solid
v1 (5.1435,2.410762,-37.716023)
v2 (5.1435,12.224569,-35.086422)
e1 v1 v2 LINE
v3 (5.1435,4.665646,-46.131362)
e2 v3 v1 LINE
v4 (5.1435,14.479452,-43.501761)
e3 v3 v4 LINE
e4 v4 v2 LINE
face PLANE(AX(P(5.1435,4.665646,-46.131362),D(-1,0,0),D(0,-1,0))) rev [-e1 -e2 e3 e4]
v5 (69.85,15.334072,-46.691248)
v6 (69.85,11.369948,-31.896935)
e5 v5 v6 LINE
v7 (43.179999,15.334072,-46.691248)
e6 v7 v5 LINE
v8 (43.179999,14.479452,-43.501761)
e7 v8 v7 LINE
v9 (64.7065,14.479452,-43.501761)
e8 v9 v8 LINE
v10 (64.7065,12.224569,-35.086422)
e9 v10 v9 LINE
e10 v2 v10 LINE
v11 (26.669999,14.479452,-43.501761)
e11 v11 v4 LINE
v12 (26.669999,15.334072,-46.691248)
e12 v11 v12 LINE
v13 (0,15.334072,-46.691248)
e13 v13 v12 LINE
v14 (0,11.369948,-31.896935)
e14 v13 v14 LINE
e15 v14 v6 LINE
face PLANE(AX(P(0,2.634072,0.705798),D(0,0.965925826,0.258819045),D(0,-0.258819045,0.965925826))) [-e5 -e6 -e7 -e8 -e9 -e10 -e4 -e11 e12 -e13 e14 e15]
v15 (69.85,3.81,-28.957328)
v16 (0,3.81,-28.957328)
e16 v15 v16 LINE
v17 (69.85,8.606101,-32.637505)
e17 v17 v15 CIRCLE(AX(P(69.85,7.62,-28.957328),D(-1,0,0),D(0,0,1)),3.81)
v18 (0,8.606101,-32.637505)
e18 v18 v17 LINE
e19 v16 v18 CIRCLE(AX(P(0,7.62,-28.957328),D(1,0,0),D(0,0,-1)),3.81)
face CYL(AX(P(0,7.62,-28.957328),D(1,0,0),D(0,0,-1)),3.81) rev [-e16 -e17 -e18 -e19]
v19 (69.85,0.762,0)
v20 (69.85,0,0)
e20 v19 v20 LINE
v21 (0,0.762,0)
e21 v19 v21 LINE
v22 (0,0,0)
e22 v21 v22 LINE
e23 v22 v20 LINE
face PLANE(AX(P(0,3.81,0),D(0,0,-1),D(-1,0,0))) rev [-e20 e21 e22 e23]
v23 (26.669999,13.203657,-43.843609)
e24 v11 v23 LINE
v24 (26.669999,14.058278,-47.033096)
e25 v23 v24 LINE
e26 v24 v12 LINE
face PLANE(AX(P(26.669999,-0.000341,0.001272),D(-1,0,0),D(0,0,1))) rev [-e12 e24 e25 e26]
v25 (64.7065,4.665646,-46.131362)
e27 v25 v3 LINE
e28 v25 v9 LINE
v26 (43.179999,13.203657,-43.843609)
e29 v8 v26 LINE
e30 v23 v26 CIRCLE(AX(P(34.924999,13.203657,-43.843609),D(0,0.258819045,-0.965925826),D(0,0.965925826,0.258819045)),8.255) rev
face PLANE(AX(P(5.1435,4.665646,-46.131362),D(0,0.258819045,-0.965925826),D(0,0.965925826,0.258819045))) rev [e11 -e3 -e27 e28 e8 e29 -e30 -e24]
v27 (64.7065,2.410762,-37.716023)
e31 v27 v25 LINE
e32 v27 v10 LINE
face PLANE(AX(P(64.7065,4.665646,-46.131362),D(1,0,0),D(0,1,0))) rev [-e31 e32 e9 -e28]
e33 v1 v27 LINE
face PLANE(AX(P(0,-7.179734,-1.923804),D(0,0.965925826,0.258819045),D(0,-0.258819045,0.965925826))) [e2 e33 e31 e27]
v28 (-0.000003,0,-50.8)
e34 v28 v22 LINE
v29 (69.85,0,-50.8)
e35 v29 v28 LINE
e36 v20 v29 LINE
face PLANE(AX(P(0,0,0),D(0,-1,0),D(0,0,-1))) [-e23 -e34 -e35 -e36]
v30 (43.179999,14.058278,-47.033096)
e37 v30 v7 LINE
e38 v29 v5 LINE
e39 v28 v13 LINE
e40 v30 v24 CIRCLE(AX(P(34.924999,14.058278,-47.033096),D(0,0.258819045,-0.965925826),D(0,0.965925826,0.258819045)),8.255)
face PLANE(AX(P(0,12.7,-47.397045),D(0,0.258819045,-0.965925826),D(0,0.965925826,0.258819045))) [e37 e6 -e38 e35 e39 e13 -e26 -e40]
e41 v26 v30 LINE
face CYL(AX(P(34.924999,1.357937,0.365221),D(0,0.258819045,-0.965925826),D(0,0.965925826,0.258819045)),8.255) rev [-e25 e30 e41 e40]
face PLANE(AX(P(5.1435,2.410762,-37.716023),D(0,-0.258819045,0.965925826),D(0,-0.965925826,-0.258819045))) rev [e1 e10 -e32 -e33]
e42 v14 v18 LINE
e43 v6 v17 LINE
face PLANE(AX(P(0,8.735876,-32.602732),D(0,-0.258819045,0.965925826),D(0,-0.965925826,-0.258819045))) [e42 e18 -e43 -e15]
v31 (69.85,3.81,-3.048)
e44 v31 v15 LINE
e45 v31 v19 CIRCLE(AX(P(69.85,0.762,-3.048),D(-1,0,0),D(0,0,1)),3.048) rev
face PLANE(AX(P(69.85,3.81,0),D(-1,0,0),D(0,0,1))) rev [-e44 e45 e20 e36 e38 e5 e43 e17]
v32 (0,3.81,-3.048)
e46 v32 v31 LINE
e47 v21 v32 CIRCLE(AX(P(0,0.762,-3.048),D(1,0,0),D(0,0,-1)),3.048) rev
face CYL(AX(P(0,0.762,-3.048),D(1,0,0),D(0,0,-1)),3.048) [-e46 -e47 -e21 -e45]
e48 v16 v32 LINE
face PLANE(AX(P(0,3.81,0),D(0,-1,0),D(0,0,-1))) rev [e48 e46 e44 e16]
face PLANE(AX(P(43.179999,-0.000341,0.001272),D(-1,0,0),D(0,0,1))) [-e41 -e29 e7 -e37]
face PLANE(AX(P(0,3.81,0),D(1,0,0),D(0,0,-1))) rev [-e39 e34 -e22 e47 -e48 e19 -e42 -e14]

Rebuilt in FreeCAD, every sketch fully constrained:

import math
import FreeCAD as App
import Part
import Sketcher
from FreeCAD import Vector
Q = App.Units.Quantity


def edges_at(feature, points):
    """Names of the edges that pass closest to the given points."""
    edges = feature.Shape.Edges
    near = lambda p: min(range(len(edges)), key=lambda i: edges[i].distToShape(Part.Vertex(*p))[0])
    return sorted({f"Edge{near(p) + 1}" for p in points})


def add_polygon(sketch, points):
    """Adds a closed chain of lines whose ends are joined by coincident constraints."""
    first, n = sketch.GeometryCount, len(points)
    for a, b in zip(points, points[1:] + points[:1]):
        sketch.addGeometry(Part.LineSegment(App.Vector(*a, 0), App.Vector(*b, 0)), False)
    for i in range(n):
        sketch.addConstraint(Sketcher.Constraint("Coincident", first + i, 2, first + (i + 1) % n, 1))

doc = App.newDocument("Part")
params = doc.addObject("Spreadsheet::Sheet", "Params")
for row, (alias, value) in enumerate([
    ("sketch1_height", "2 in"),
    ("sketch1_width", "2.75 in"),
    ("pad1_length", "0.15 in"),
    ("sketch2_length", "0.603 in"),
    ("pad2_length", "2.75 in"),
    ("sketch3_width", "0.15 in"),
    ("sketch4_width", "2.345 in"),
    ("sketch4_height", "0.343 in"),
    ("pocket2_length", "0.4 in"),
    ("sketch5_radius", "0.325 in"),
    ("sketch6_radius", "0.325 in"),
    ("sketch7_radius", "0.325 in"),
    ("sketch8_radius", "0.325 in"),
    ("sketch9_radius", "0.325 in"),
    ("sketch9_height", "0.052 in"),
    ("sketch10_radius", "0.325 in"),
    ("sketch10_height", "0.052 in"),
    ("sketch11_radius", "0.325 in"),
    ("sketch11_height", "0.052 in"),
    ("sketch12_radius", "0.325 in"),
    ("sketch12_height", "0.052 in"),
    ("sketch13_radius", "0.325 in"),
    ("sketch13_height", "0.052 in"),
    ("sketch14_radius", "0.325 in"),
    ("sketch14_height", "0.052 in"),
    ("fillet_radius", "0.15 in"),
    ("fillet2_radius", "0.12 in"),
], start=1):
    params.set(f"A{row}", alias)
    params.set(f"B{row}", "=" + value)
    params.setAlias(f"B{row}", alias)

body = doc.addObject("PartDesign::Body", "Body")

# Sketch on XZ plane
sketch1 = body.newObject("Sketcher::SketchObject", "Sketch")
sketch1.AttachmentSupport = (doc.getObject("XZ_Plane"), [""])
sketch1.MapMode = "FlatFace"
add_polygon(sketch1, [(0, -51), (0, 0), (70, 0), (70, -51)])  # lines 0-3
sketch1.addConstraint([
    Sketcher.Constraint("Vertical", 0),
    Sketcher.Constraint("Horizontal", 1),
    Sketcher.Constraint("Vertical", 2),
    Sketcher.Constraint("Horizontal", 3),
    Sketcher.Constraint("Coincident", 0, 2, -1, 1),
    Sketcher.Constraint("DistanceY", 0, 1, 0, 2, Q("2 in")),
    Sketcher.Constraint("DistanceX", 1, 1, 1, 2, Q("2.75 in")),
])
sketch1.setExpression("Constraints[9]", "Params.sketch1_height")
sketch1.setExpression("Constraints[10]", "Params.sketch1_width")
pad1 = body.newObject("PartDesign::Pad", "Pad")
pad1.Profile = sketch1
pad1.setExpression("Length", "Params.pad1_length")
pad1.Reversed = True

# Sketch on YZ plane
sketch2 = body.newObject("Sketcher::SketchObject", "Sketch001")
sketch2.AttachmentSupport = (doc.getObject("YZ_Plane"), [""])
sketch2.MapMode = "FlatFace"
sketch2.AttachmentOffset = App.Placement(Vector(0, 0, 2.75 * 25.4), App.Rotation())
add_polygon(sketch2, [(4, -34), (4, -50), (15, -47), (11, -32)])  # lines 0-3
sketch2.addConstraint([
    Sketcher.Constraint("Vertical", 0),
    Sketcher.Constraint("Perpendicular", 1, 2),
    Sketcher.Constraint("Perpendicular", 2, 3),
    Sketcher.Constraint("Angle", 1, Q("15 deg")),
    Sketcher.Constraint("DistanceX", -1, 1, 0, 2, Q("0.15 in")),
    Sketcher.Constraint("Distance", 2, Q("0.603 in")),
    Sketcher.Constraint("DistanceX", -1, 1, 2, 2, Q("11.369948 mm")),
    Sketcher.Constraint("DistanceY", 0, 2, -1, 1, Q("49.779114 mm")),
])
sketch2.setExpression("Constraints[9]", "Params.sketch2_length")
pad2 = body.newObject("PartDesign::Pad", "Pad001")
pad2.Profile = sketch2
pad2.setExpression("Length", "Params.pad2_length")
pad2.Reversed = True

# Sketch on YZ plane
sketch3 = body.newObject("Sketcher::SketchObject", "Sketch002")
sketch3.AttachmentSupport = (doc.getObject("YZ_Plane"), [""])
sketch3.MapMode = "FlatFace"
sketch3.AttachmentOffset = App.Placement(Vector(0, 0, 2.75 * 25.4), App.Rotation())
add_polygon(sketch3, [(3.8, -49.8), (0, -50.8), (3.8, -50.8)])  # lines 0-2
sketch3.addConstraint([
    Sketcher.Constraint("Horizontal", 1),
    Sketcher.Constraint("Vertical", 2),
    Sketcher.Constraint("PointOnObject", 0, 2, -2),
    Sketcher.Constraint("DistanceY", 0, 2, -1, 1, Q("2 in")),
    Sketcher.Constraint("Angle", 0, Q("-165 deg")),
    Sketcher.Constraint("DistanceX", 1, 1, 1, 2, Q("0.15 in")),
])
sketch3.setExpression("Constraints[8]", "Params.sketch3_width")
pocket1 = body.newObject("PartDesign::Pocket", "Pocket")
pocket1.Profile = sketch3
pocket1.Type = "ThroughAll"

# Sketch on an angled plane
sketch4 = body.newObject("Sketcher::SketchObject", "Sketch003")
sketch4.Placement = App.Placement(Vector(0, 2.634072, 0.705798), App.Rotation(Vector(1, 0, 0), Vector(0, 0.258819045, -0.965925826), Vector(0, 0.965925826, 0.258819045), "ZXY"))
add_polygon(sketch4, [(5, 46), (5, 37), (65, 37), (65, 46)])  # lines 0-3
sketch4.addConstraint([
    Sketcher.Constraint("Vertical", 0),
    Sketcher.Constraint("Horizontal", 1),
    Sketcher.Constraint("Vertical", 2),
    Sketcher.Constraint("Horizontal", 3),
    Sketcher.Constraint("DistanceX", 1, 1, 1, 2, Q("2.345 in")),
    Sketcher.Constraint("DistanceY", 0, 2, 0, 1, Q("0.343 in")),
    Sketcher.Constraint("DistanceX", -1, 1, 0, 2, Q("0.2025 in")),
    Sketcher.Constraint("DistanceY", -1, 1, 0, 2, Q("37.054832 mm")),
])
sketch4.setExpression("Constraints[8]", "Params.sketch4_width")
sketch4.setExpression("Constraints[9]", "Params.sketch4_height")
pocket2 = body.newObject("PartDesign::Pocket", "Pocket001")
pocket2.Profile = sketch4
pocket2.setExpression("Length", "Params.pocket2_length")

# Sketch on an angled plane
sketch5 = body.newObject("Sketcher::SketchObject", "Sketch004")
sketch5.Placement = App.Placement(Vector(0, 12.7, -47.397045), App.Rotation(Vector(-1, 0, 0), Vector(0, 0.965925826, 0.258819045), Vector(0, 0.258819045, -0.965925826), "ZXY"))
sketch5.addGeometry([
    Part.ArcOfCircle(Part.Circle(Vector(-35, 1, 0), Vector(0, 0, 1), 8), math.radians(180), math.radians(270)),
    Part.LineSegment(Vector(-35, -7, 0), Vector(-35, 1, 0)),
    Part.LineSegment(Vector(-35, 1, 0), Vector(-43, 1, 0)),
], False)
sketch5.addConstraint([
    Sketcher.Constraint("Coincident", 0, 2, 1, 1),
    Sketcher.Constraint("Coincident", 1, 2, 2, 1),
    Sketcher.Constraint("Coincident", 2, 2, 0, 1),
    Sketcher.Constraint("Vertical", 1),
    Sketcher.Constraint("Horizontal", 2),
    Sketcher.Constraint("Coincident", 1, 2, 0, 3),
    Sketcher.Constraint("Radius", 0, Q("0.325 in")),
    Sketcher.Constraint("DistanceX", 2, 2, -1, 1, Q("1.7 in")),
    Sketcher.Constraint("DistanceY", -1, 1, 0, 3, Q("1.406193 mm")),
])
sketch5.setExpression("Constraints[6]", "Params.sketch5_radius")
pocket3 = body.newObject("PartDesign::Pocket", "Pocket002")
pocket3.Profile = sketch5
pocket3.Type = "UpToFirst"

# Sketch on an angled plane
sketch6 = body.newObject("Sketcher::SketchObject", "Sketch005")
sketch6.Placement = App.Placement(Vector(0, 12.7, -47.397045), App.Rotation(Vector(-1, 0, 0), Vector(0, 0.965925826, 0.258819045), Vector(0, 0.258819045, -0.965925826), "ZXY"))
sketch6.addGeometry([
    Part.LineSegment(Vector(-35, 1, 0), Vector(-35, -7, 0)),
    Part.ArcOfCircle(Part.Circle(Vector(-35, 1, 0), Vector(0, 0, 1), 8), math.radians(-90), math.radians(0)),
    Part.LineSegment(Vector(-27, 1, 0), Vector(-35, 1, 0)),
], False)
sketch6.addConstraint([
    Sketcher.Constraint("Coincident", 0, 2, 1, 1),
    Sketcher.Constraint("Coincident", 1, 2, 2, 1),
    Sketcher.Constraint("Coincident", 2, 2, 0, 1),
    Sketcher.Constraint("Vertical", 0),
    Sketcher.Constraint("Horizontal", 2),
    Sketcher.Constraint("Coincident", 2, 2, 1, 3),
    Sketcher.Constraint("Radius", 1, Q("0.325 in")),
    Sketcher.Constraint("DistanceX", 1, 2, -1, 1, Q("1.05 in")),
    Sketcher.Constraint("DistanceY", -1, 1, 1, 3, Q("1.406193 mm")),
])
sketch6.setExpression("Constraints[6]", "Params.sketch6_radius")
pocket4 = body.newObject("PartDesign::Pocket", "Pocket003")
pocket4.Profile = sketch6
pocket4.Type = "UpToFirst"

# Sketch on an angled plane
sketch7 = body.newObject("Sketcher::SketchObject", "Sketch006")
sketch7.Placement = App.Placement(Vector(0, 12.7, -47.397045), App.Rotation(Vector(-1, 0, 0), Vector(0, 0.965925826, 0.258819045), Vector(0, 0.258819045, -0.965925826), "ZXY"))
sketch7.addGeometry([
    Part.ArcOfCircle(Part.Circle(Vector(-35, 1, 0), Vector(0, 0, 1), 8), math.radians(180), math.radians(270)),
    Part.LineSegment(Vector(-35, -7, 0), Vector(-35, 1, 0)),
    Part.LineSegment(Vector(-35, 1, 0), Vector(-43, 1, 0)),
], False)
sketch7.addConstraint([
    Sketcher.Constraint("Coincident", 0, 2, 1, 1),
    Sketcher.Constraint("Coincident", 1, 2, 2, 1),
    Sketcher.Constraint("Coincident", 2, 2, 0, 1),
    Sketcher.Constraint("Vertical", 1),
    Sketcher.Constraint("Horizontal", 2),
    Sketcher.Constraint("Coincident", 1, 2, 0, 3),
    Sketcher.Constraint("Radius", 0, Q("0.325 in")),
    Sketcher.Constraint("DistanceX", 2, 2, -1, 1, Q("1.7 in")),
    Sketcher.Constraint("DistanceY", -1, 1, 0, 3, Q("1.406193 mm")),
])
sketch7.setExpression("Constraints[6]", "Params.sketch7_radius")
pocket5 = body.newObject("PartDesign::Pocket", "Pocket004")
pocket5.Profile = sketch7
pocket5.Type = "UpToFirst"

# Sketch on an angled plane
sketch8 = body.newObject("Sketcher::SketchObject", "Sketch007")
sketch8.Placement = App.Placement(Vector(0, 12.7, -47.397045), App.Rotation(Vector(-1, 0, 0), Vector(0, 0.965925826, 0.258819045), Vector(0, 0.258819045, -0.965925826), "ZXY"))
sketch8.addGeometry([
    Part.LineSegment(Vector(-35, 1, 0), Vector(-35, -7, 0)),
    Part.ArcOfCircle(Part.Circle(Vector(-35, 1, 0), Vector(0, 0, 1), 8), math.radians(-90), math.radians(0)),
    Part.LineSegment(Vector(-27, 1, 0), Vector(-35, 1, 0)),
], False)
sketch8.addConstraint([
    Sketcher.Constraint("Coincident", 0, 2, 1, 1),
    Sketcher.Constraint("Coincident", 1, 2, 2, 1),
    Sketcher.Constraint("Coincident", 2, 2, 0, 1),
    Sketcher.Constraint("Vertical", 0),
    Sketcher.Constraint("Horizontal", 2),
    Sketcher.Constraint("Coincident", 2, 2, 1, 3),
    Sketcher.Constraint("Radius", 1, Q("0.325 in")),
    Sketcher.Constraint("DistanceX", 1, 2, -1, 1, Q("1.05 in")),
    Sketcher.Constraint("DistanceY", -1, 1, 1, 3, Q("1.406193 mm")),
])
sketch8.setExpression("Constraints[6]", "Params.sketch8_radius")
pocket6 = body.newObject("PartDesign::Pocket", "Pocket005")
pocket6.Profile = sketch8
pocket6.Type = "UpToFirst"

# Sketch on an angled plane
sketch9 = body.newObject("Sketcher::SketchObject", "Sketch008")
sketch9.Placement = App.Placement(Vector(0, 12.7, -47.397045), App.Rotation(Vector(-1, 0, 0), Vector(0, 0.965925826, 0.258819045), Vector(0, 0.258819045, -0.965925826), "ZXY"))
sketch9.addGeometry([
    Part.LineSegment(Vector(-43.2, 1.4, 0), Vector(-34.9, 1.4, 0)),
    Part.LineSegment(Vector(-34.9, 1.4, 0), Vector(-34.9, 2.7, 0)),
    Part.LineSegment(Vector(-34.9, 2.7, 0), Vector(-43.1, 2.7, 0)),
    Part.ArcOfCircle(Part.Circle(Vector(-34.9, 1.4, 0), Vector(0, 0, 1), 8.3), math.radians(170.79), math.radians(180)),
], False)
sketch9.addConstraint([
    Sketcher.Constraint("Coincident", 0, 2, 1, 1),
    Sketcher.Constraint("Coincident", 1, 2, 2, 1),
    Sketcher.Constraint("Coincident", 2, 2, 3, 1),
    Sketcher.Constraint("Coincident", 3, 2, 0, 1),
    Sketcher.Constraint("Horizontal", 0),
    Sketcher.Constraint("Vertical", 1),
    Sketcher.Constraint("Horizontal", 2),
    Sketcher.Constraint("Coincident", 0, 2, 3, 3),
    Sketcher.Constraint("Radius", 3, Q("0.325 in")),
    Sketcher.Constraint("DistanceX", 3, 2, -1, 1, Q("1.7 in")),
    Sketcher.Constraint("DistanceY", 1, 1, 1, 2, Q("0.052 in")),
    Sketcher.Constraint("DistanceY", -1, 1, 3, 3, Q("1.406192 mm")),
])
sketch9.setExpression("Constraints[8]", "Params.sketch9_radius")
sketch9.setExpression("Constraints[10]", "Params.sketch9_height")
pocket7 = body.newObject("PartDesign::Pocket", "Pocket006")
pocket7.Profile = sketch9
pocket7.Type = "UpToFirst"

# Sketch on an angled plane
sketch10 = body.newObject("Sketcher::SketchObject", "Sketch009")
sketch10.Placement = App.Placement(Vector(0, 12.7, -47.397045), App.Rotation(Vector(-1, 0, 0), Vector(0, 0.965925826, 0.258819045), Vector(0, 0.258819045, -0.965925826), "ZXY"))
sketch10.addGeometry([
    Part.LineSegment(Vector(-34.9, 2.7, 0), Vector(-34.9, 1.4, 0)),
    Part.LineSegment(Vector(-34.9, 1.4, 0), Vector(-26.7, 1.4, 0)),
    Part.ArcOfCircle(Part.Circle(Vector(-34.9, 1.4, 0), Vector(0, 0, 1), 8.3), math.radians(0), math.radians(9.21)),
    Part.LineSegment(Vector(-26.8, 2.7, 0), Vector(-34.9, 2.7, 0)),
], False)
sketch10.addConstraint([
    Sketcher.Constraint("Coincident", 0, 2, 1, 1),
    Sketcher.Constraint("Coincident", 1, 2, 2, 1),
    Sketcher.Constraint("Coincident", 2, 2, 3, 1),
    Sketcher.Constraint("Coincident", 3, 2, 0, 1),
    Sketcher.Constraint("Vertical", 0),
    Sketcher.Constraint("Horizontal", 1),
    Sketcher.Constraint("Horizontal", 3),
    Sketcher.Constraint("Coincident", 0, 2, 2, 3),
    Sketcher.Constraint("Radius", 2, Q("0.325 in")),
    Sketcher.Constraint("DistanceY", 0, 2, 0, 1, Q("0.052 in")),
    Sketcher.Constraint("DistanceX", 1, 2, -1, 1, Q("1.05 in")),
    Sketcher.Constraint("DistanceY", -1, 1, 2, 3, Q("1.406192 mm")),
])
sketch10.setExpression("Constraints[8]", "Params.sketch10_radius")
sketch10.setExpression("Constraints[9]", "Params.sketch10_height")
pocket8 = body.newObject("PartDesign::Pocket", "Pocket007")
pocket8.Profile = sketch10
pocket8.Type = "UpToFirst"

# Sketch on an angled plane
sketch11 = body.newObject("Sketcher::SketchObject", "Sketch010")
sketch11.Placement = App.Placement(Vector(0, 12.7, -47.397045), App.Rotation(Vector(-1, 0, 0), Vector(0, 0.965925826, 0.258819045), Vector(0, 0.258819045, -0.965925826), "ZXY"))
sketch11.addGeometry([
    Part.LineSegment(Vector(-43.2, 1.4, 0), Vector(-34.9, 1.4, 0)),
    Part.LineSegment(Vector(-34.9, 1.4, 0), Vector(-34.9, 2.7, 0)),
    Part.LineSegment(Vector(-34.9, 2.7, 0), Vector(-43.1, 2.7, 0)),
    Part.ArcOfCircle(Part.Circle(Vector(-34.9, 1.4, 0), Vector(0, 0, 1), 8.3), math.radians(170.79), math.radians(180)),
], False)
sketch11.addConstraint([
    Sketcher.Constraint("Coincident", 0, 2, 1, 1),
    Sketcher.Constraint("Coincident", 1, 2, 2, 1),
    Sketcher.Constraint("Coincident", 2, 2, 3, 1),
    Sketcher.Constraint("Coincident", 3, 2, 0, 1),
    Sketcher.Constraint("Horizontal", 0),
    Sketcher.Constraint("Vertical", 1),
    Sketcher.Constraint("Horizontal", 2),
    Sketcher.Constraint("Coincident", 0, 2, 3, 3),
    Sketcher.Constraint("Radius", 3, Q("0.325 in")),
    Sketcher.Constraint("DistanceX", 3, 2, -1, 1, Q("1.7 in")),
    Sketcher.Constraint("DistanceY", 1, 1, 1, 2, Q("0.052 in")),
    Sketcher.Constraint("DistanceY", -1, 1, 3, 3, Q("1.406192 mm")),
])
sketch11.setExpression("Constraints[8]", "Params.sketch11_radius")
sketch11.setExpression("Constraints[10]", "Params.sketch11_height")
pocket9 = body.newObject("PartDesign::Pocket", "Pocket008")
pocket9.Profile = sketch11
pocket9.Type = "UpToFirst"

# Sketch on an angled plane
sketch12 = body.newObject("Sketcher::SketchObject", "Sketch011")
sketch12.Placement = App.Placement(Vector(0, 12.7, -47.397045), App.Rotation(Vector(-1, 0, 0), Vector(0, 0.965925826, 0.258819045), Vector(0, 0.258819045, -0.965925826), "ZXY"))
sketch12.addGeometry([
    Part.LineSegment(Vector(-34.9, 2.7, 0), Vector(-34.9, 1.4, 0)),
    Part.LineSegment(Vector(-34.9, 1.4, 0), Vector(-26.7, 1.4, 0)),
    Part.ArcOfCircle(Part.Circle(Vector(-34.9, 1.4, 0), Vector(0, 0, 1), 8.3), math.radians(0), math.radians(9.21)),
    Part.LineSegment(Vector(-26.8, 2.7, 0), Vector(-34.9, 2.7, 0)),
], False)
sketch12.addConstraint([
    Sketcher.Constraint("Coincident", 0, 2, 1, 1),
    Sketcher.Constraint("Coincident", 1, 2, 2, 1),
    Sketcher.Constraint("Coincident", 2, 2, 3, 1),
    Sketcher.Constraint("Coincident", 3, 2, 0, 1),
    Sketcher.Constraint("Vertical", 0),
    Sketcher.Constraint("Horizontal", 1),
    Sketcher.Constraint("Horizontal", 3),
    Sketcher.Constraint("Coincident", 0, 2, 2, 3),
    Sketcher.Constraint("Radius", 2, Q("0.325 in")),
    Sketcher.Constraint("DistanceY", 0, 2, 0, 1, Q("0.052 in")),
    Sketcher.Constraint("DistanceX", 1, 2, -1, 1, Q("1.05 in")),
    Sketcher.Constraint("DistanceY", -1, 1, 2, 3, Q("1.406192 mm")),
])
sketch12.setExpression("Constraints[8]", "Params.sketch12_radius")
sketch12.setExpression("Constraints[9]", "Params.sketch12_height")
pocket10 = body.newObject("PartDesign::Pocket", "Pocket009")
pocket10.Profile = sketch12
pocket10.Type = "UpToFirst"

# Sketch on an angled plane
sketch13 = body.newObject("Sketcher::SketchObject", "Sketch012")
sketch13.Placement = App.Placement(Vector(0, 12.7, -47.397045), App.Rotation(Vector(-1, 0, 0), Vector(0, 0.965925826, 0.258819045), Vector(0, 0.258819045, -0.965925826), "ZXY"))
sketch13.addGeometry([
    Part.LineSegment(Vector(-43.18, 2.73, 0), Vector(-43.18, 1.41, 0)),
    Part.ArcOfCircle(Part.Circle(Vector(-34.92, 1.41, 0), Vector(0, 0, 1), 8.26), math.radians(170.79), math.radians(180)),
    Part.LineSegment(Vector(-43.07, 2.73, 0), Vector(-43.18, 2.73, 0)),
], False)
sketch13.addConstraint([
    Sketcher.Constraint("Tangent", 0, 2, 1, 2),
    Sketcher.Constraint("Coincident", 1, 1, 2, 1),
    Sketcher.Constraint("Coincident", 2, 2, 0, 1),
    Sketcher.Constraint("Vertical", 0),
    Sketcher.Constraint("Horizontal", 2),
    Sketcher.Constraint("Radius", 1, Q("0.325 in")),
    Sketcher.Constraint("DistanceX", 0, 2, -1, 1, Q("1.7 in")),
    Sketcher.Constraint("DistanceY", 0, 2, 0, 1, Q("0.052 in")),
    Sketcher.Constraint("DistanceY", -1, 1, 1, 3, Q("1.406192 mm")),
])
sketch13.setExpression("Constraints[5]", "Params.sketch13_radius")
sketch13.setExpression("Constraints[7]", "Params.sketch13_height")
pocket11 = body.newObject("PartDesign::Pocket", "Pocket010")
pocket11.Profile = sketch13
pocket11.Type = "UpToFirst"

# Sketch on an angled plane
sketch14 = body.newObject("Sketcher::SketchObject", "Sketch013")
sketch14.Placement = App.Placement(Vector(0, 12.7, -47.397045), App.Rotation(Vector(-1, 0, 0), Vector(0, 0.965925826, 0.258819045), Vector(0, 0.258819045, -0.965925826), "ZXY"))
sketch14.addGeometry([
    Part.ArcOfCircle(Part.Circle(Vector(-34.92, 1.41, 0), Vector(0, 0, 1), 8.26), math.radians(0), math.radians(9.21)),
    Part.LineSegment(Vector(-26.67, 1.41, 0), Vector(-26.67, 2.73, 0)),
    Part.LineSegment(Vector(-26.67, 2.73, 0), Vector(-26.78, 2.73, 0)),
], False)
sketch14.addConstraint([
    Sketcher.Constraint("Tangent", 0, 1, 1, 1),
    Sketcher.Constraint("Coincident", 1, 2, 2, 1),
    Sketcher.Constraint("Coincident", 2, 2, 0, 2),
    Sketcher.Constraint("Vertical", 1),
    Sketcher.Constraint("Horizontal", 2),
    Sketcher.Constraint("Radius", 0, Q("0.325 in")),
    Sketcher.Constraint("DistanceY", 1, 1, 1, 2, Q("0.052 in")),
    Sketcher.Constraint("DistanceX", 0, 1, -1, 1, Q("1.05 in")),
    Sketcher.Constraint("DistanceY", -1, 1, 0, 3, Q("1.406192 mm")),
])
sketch14.setExpression("Constraints[5]", "Params.sketch14_radius")
sketch14.setExpression("Constraints[6]", "Params.sketch14_height")
pocket12 = body.newObject("PartDesign::Pocket", "Pocket011")
pocket12.Profile = sketch14
pocket12.Type = "UpToFirst"
doc.recompute()

fillet = body.newObject("PartDesign::Fillet", "Fillet")
fillet.Base = (pocket12, edges_at(pocket12, [(34.925, 3.81, -33.923)]))
fillet.setExpression("Radius", "Params.fillet_radius")
doc.recompute()

fillet2 = body.newObject("PartDesign::Fillet", "Fillet001")
fillet2.Base = (fillet, edges_at(fillet, [(34.925, 3.81, 0)]))
fillet2.setExpression("Radius", "Params.fillet2_radius")

doc.recompute()
